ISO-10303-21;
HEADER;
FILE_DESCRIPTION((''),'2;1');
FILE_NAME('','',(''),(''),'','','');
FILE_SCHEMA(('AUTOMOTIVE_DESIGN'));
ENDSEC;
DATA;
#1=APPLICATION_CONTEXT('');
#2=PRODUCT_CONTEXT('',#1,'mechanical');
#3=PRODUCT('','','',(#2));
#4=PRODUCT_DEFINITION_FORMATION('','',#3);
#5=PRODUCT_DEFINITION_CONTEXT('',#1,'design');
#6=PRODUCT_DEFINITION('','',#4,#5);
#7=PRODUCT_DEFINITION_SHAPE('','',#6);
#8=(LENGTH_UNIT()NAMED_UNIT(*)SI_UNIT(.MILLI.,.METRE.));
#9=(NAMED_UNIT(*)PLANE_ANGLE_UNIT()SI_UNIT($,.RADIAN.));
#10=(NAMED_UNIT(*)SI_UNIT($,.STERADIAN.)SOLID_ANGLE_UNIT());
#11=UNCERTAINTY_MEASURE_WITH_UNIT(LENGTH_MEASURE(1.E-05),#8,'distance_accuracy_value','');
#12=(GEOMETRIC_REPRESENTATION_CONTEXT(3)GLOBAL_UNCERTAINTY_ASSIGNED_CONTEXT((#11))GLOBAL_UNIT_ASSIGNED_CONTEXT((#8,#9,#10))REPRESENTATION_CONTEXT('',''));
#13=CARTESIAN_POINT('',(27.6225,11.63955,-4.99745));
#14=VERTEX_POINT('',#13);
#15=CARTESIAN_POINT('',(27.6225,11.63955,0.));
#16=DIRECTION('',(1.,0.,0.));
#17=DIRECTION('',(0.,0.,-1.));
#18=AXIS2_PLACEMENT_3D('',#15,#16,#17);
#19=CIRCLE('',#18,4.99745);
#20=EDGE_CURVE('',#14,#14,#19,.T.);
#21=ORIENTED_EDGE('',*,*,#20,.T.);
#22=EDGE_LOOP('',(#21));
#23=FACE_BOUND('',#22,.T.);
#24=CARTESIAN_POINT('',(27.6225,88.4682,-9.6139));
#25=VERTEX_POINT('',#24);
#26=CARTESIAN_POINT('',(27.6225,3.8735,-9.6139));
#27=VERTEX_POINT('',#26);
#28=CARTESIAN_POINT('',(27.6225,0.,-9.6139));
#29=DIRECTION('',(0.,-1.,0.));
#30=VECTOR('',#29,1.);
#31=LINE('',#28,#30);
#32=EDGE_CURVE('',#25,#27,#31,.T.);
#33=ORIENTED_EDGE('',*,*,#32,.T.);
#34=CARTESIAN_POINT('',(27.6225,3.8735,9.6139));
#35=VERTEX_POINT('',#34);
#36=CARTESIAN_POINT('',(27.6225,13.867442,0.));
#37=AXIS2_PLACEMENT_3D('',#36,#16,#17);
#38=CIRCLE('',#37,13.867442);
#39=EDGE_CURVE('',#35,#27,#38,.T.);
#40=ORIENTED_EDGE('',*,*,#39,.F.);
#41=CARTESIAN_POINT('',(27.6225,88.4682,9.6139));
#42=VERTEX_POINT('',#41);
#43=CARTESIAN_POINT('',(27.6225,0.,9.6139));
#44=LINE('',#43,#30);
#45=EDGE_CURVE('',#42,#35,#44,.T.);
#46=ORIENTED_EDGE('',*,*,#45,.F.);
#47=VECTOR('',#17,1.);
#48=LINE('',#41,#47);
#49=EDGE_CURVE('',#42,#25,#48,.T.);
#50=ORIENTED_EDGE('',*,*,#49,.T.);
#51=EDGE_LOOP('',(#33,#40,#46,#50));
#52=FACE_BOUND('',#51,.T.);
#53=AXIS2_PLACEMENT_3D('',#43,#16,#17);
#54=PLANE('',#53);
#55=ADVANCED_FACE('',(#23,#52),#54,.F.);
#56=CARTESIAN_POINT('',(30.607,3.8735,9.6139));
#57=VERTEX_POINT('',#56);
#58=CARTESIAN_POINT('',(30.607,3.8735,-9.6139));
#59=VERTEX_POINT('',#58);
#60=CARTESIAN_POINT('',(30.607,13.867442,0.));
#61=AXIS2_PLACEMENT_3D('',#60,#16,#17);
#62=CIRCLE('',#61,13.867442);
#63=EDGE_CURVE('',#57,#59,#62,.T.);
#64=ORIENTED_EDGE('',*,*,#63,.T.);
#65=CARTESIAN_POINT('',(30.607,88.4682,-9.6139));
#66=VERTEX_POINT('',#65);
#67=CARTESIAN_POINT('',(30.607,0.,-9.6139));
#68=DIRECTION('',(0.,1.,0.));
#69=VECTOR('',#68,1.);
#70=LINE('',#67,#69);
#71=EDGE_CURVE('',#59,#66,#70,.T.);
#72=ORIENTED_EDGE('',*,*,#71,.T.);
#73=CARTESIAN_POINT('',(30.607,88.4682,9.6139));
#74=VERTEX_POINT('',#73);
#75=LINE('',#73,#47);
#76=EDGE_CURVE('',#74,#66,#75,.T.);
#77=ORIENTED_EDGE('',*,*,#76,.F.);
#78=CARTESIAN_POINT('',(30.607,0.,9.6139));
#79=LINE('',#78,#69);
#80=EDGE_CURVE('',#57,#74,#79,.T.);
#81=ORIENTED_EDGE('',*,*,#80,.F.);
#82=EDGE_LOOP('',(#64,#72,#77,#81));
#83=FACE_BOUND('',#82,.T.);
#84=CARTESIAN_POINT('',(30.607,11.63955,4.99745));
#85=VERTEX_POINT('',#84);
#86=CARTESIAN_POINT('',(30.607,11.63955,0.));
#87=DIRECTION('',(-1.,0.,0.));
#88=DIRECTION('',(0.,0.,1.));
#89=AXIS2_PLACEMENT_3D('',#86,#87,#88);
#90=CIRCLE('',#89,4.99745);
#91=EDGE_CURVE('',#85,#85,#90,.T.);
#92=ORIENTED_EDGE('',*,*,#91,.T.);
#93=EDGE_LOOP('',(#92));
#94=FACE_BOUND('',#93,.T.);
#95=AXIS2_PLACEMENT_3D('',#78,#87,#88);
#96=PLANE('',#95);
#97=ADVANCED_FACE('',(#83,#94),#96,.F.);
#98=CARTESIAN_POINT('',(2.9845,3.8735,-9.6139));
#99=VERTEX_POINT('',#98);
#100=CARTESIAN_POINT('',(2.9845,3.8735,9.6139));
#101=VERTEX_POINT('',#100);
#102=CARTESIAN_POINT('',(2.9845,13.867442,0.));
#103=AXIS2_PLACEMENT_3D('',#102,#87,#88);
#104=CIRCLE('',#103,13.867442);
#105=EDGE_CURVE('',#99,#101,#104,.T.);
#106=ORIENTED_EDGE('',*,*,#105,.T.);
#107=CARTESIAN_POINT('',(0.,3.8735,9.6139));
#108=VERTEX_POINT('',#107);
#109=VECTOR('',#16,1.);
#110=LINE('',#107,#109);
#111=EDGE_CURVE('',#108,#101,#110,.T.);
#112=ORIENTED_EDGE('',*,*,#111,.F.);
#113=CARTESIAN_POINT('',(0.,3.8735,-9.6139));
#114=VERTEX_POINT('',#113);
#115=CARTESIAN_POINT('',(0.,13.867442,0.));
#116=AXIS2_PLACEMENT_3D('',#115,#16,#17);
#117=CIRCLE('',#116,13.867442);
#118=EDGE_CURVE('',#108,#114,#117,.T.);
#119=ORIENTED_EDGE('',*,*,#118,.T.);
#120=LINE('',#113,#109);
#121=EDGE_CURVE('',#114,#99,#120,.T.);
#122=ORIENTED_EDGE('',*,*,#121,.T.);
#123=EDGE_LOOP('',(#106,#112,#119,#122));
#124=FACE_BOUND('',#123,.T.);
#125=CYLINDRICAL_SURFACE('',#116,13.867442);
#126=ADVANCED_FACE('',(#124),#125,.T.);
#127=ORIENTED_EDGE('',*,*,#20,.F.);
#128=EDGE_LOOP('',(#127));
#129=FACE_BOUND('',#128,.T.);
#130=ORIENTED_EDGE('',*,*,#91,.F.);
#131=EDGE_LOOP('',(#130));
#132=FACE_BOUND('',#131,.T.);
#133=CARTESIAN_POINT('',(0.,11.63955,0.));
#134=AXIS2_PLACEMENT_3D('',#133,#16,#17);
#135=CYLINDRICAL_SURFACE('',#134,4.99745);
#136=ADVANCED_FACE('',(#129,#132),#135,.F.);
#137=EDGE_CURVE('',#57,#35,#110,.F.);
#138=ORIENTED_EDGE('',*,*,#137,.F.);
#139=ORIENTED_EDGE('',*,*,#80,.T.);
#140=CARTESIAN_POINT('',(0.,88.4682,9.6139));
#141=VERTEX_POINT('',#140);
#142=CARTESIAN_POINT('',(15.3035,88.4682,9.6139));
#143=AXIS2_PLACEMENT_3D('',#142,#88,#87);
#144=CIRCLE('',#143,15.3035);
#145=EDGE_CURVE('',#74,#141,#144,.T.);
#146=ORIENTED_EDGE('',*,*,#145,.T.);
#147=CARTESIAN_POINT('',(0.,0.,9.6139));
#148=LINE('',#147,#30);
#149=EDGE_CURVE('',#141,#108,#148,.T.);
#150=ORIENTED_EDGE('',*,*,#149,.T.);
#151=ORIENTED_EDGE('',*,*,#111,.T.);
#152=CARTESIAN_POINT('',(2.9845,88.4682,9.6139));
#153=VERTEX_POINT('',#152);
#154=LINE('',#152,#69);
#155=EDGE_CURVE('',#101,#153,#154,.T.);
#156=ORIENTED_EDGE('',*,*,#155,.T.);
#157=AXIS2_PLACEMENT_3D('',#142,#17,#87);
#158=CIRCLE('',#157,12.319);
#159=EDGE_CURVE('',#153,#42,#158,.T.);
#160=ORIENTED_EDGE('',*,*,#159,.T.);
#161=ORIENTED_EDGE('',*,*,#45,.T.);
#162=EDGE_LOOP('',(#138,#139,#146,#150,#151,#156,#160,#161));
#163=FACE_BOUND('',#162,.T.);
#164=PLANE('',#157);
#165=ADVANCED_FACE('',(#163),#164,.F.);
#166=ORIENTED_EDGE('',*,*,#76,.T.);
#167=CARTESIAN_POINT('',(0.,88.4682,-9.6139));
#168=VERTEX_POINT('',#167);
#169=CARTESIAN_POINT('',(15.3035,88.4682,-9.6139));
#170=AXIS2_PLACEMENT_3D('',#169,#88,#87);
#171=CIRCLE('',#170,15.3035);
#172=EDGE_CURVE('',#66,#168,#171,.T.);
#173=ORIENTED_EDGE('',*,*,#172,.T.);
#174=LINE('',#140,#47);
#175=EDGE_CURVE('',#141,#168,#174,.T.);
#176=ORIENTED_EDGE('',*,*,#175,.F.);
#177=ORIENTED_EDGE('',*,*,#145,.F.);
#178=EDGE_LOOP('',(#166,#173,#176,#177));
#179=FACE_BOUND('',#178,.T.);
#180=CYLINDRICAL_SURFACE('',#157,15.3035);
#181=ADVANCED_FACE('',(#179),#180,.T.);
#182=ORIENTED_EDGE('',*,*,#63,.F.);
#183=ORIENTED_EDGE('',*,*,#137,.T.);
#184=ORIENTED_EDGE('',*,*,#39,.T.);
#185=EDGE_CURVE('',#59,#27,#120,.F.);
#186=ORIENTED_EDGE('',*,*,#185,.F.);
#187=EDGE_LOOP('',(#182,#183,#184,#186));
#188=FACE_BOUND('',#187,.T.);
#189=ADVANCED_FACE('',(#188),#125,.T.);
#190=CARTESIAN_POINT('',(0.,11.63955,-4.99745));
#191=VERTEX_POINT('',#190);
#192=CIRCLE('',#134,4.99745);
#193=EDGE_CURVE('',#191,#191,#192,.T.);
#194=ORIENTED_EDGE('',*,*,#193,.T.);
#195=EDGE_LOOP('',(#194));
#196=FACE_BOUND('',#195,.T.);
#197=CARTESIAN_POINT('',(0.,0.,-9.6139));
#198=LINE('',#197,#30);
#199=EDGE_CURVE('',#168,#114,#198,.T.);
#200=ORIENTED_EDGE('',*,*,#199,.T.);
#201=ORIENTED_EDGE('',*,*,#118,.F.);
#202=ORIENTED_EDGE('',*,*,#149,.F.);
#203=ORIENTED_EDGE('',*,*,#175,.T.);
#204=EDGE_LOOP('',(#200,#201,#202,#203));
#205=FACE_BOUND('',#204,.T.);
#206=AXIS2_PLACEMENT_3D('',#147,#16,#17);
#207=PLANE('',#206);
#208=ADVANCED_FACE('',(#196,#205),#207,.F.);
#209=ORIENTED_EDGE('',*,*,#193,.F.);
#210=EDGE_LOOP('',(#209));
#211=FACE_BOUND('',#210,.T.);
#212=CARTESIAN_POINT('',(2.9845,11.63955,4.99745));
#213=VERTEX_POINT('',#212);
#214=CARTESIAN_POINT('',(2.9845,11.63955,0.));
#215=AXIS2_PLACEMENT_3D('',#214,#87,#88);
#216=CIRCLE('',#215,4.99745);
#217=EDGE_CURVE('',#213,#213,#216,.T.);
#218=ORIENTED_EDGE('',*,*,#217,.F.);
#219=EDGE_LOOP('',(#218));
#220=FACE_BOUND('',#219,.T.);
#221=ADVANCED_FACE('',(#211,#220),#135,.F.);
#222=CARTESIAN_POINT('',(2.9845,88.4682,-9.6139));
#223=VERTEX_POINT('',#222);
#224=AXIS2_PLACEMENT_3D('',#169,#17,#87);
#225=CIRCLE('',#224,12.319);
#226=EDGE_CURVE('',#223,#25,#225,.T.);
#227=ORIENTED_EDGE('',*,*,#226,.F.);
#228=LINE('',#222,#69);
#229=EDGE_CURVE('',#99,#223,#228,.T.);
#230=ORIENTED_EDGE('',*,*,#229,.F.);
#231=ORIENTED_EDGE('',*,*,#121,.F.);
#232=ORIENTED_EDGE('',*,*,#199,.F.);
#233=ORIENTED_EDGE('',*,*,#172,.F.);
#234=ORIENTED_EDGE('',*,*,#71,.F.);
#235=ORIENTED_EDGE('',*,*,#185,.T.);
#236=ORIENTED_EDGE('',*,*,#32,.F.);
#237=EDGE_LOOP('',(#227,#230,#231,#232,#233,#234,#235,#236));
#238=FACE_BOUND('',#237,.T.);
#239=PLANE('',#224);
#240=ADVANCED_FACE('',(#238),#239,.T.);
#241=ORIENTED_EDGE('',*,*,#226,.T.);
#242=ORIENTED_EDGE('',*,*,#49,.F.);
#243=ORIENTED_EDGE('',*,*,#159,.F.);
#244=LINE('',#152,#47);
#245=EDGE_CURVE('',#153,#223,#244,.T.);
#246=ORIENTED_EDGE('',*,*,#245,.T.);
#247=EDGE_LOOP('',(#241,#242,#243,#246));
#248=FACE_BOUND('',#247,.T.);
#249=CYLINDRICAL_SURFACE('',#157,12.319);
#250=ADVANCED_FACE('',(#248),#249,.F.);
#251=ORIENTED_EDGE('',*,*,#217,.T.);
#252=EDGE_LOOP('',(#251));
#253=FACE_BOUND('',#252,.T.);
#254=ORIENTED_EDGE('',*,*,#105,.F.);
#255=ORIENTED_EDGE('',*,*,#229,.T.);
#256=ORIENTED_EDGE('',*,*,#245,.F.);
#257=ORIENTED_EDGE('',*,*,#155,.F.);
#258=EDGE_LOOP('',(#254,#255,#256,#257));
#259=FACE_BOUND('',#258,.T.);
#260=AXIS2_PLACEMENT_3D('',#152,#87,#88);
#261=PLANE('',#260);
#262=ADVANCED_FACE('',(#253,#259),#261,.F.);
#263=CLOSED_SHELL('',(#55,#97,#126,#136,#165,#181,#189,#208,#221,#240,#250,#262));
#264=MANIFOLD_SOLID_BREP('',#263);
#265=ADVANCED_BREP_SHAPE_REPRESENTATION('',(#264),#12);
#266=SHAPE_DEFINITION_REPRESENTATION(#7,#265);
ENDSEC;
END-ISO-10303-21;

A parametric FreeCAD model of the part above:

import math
import FreeCAD as App
import Part
import Sketcher

V = App.Vector
Q = App.Units.Quantity

doc = App.newDocument("Part")
body = doc.addObject("PartDesign::Body", "Body")

sketch1 = body.newObject("Sketcher::SketchObject", "Sketch")
sketch1.AttachmentSupport = (doc.getObject("XY_Plane"), [""])
sketch1.MapMode = "FlatFace"
sketch1.addGeometry(Part.LineSegment(V(0, 88.4682, 0), V(0, 0, 0)), False)
sketch1.addGeometry(Part.LineSegment(V(0, 0, 0), V(2.9845, 0, 0)), False)
sketch1.addGeometry(Part.LineSegment(V(2.9845, 0, 0), V(2.9845, 88.4682, 0)), False)
sketch1.addGeometry(Part.ArcOfCircle(Part.Circle(V(15.3035, 88.4682, 0), V(0, 0, 1), 12.319), math.radians(0), math.radians(180)), False)
sketch1.addGeometry(Part.LineSegment(V(27.6225, 88.4682, 0), V(27.6225, 0, 0)), False)
sketch1.addGeometry(Part.LineSegment(V(27.6225, 0, 0), V(30.607, 0, 0)), False)
sketch1.addGeometry(Part.LineSegment(V(30.607, 0, 0), V(30.607, 88.4682, 0)), False)
sketch1.addGeometry(Part.ArcOfCircle(Part.Circle(V(15.3035, 88.4682, 0), V(0, 0, 1), 15.3035), math.radians(0), math.radians(180)), False)
sketch1.addConstraint(Sketcher.Constraint("Coincident", 0, 2, 1, 1))
sketch1.addConstraint(Sketcher.Constraint("Coincident", 1, 2, 2, 1))
sketch1.addConstraint(Sketcher.Constraint("Tangent", 2, 2, 3, 2))
sketch1.addConstraint(Sketcher.Constraint("Tangent", 3, 1, 4, 1))
sketch1.addConstraint(Sketcher.Constraint("Coincident", 4, 2, 5, 1))
sketch1.addConstraint(Sketcher.Constraint("Coincident", 5, 2, 6, 1))
sketch1.addConstraint(Sketcher.Constraint("Tangent", 6, 2, 7, 1))
sketch1.addConstraint(Sketcher.Constraint("Tangent", 7, 2, 0, 1))
sketch1.addConstraint(Sketcher.Constraint("Vertical", 0))
sketch1.addConstraint(Sketcher.Constraint("Horizontal", 1))
sketch1.addConstraint(Sketcher.Constraint("Vertical", 2))
sketch1.addConstraint(Sketcher.Constraint("Vertical", 4))
sketch1.addConstraint(Sketcher.Constraint("Horizontal", 5))
sketch1.addConstraint(Sketcher.Constraint("Vertical", 6))
sketch1.addConstraint(Sketcher.Constraint("Coincident", 0, 2, -1, 1))
sketch1.addConstraint(Sketcher.Constraint("Coincident", 7, 3, 3, 3))
sketch1.addConstraint(Sketcher.Constraint("PointOnObject", 4, 2, -1))
sketch1.addConstraint(Sketcher.Constraint("Radius", 3, Q("0.485 in")))
sketch1.addConstraint(Sketcher.Constraint("Radius", 7, Q("0.6025 in")))
sketch1.addConstraint(Sketcher.Constraint("DistanceY", 0, 2, 0, 1, Q("3.483 in")))
pad1 = body.newObject("PartDesign::Pad", "Pad")
pad1.Profile = sketch1
pad1.Length = Q("0.757 in")
pad1.Midplane = True

sketch2 = body.newObject("Sketcher::SketchObject", "Sketch001")
sketch2.AttachmentSupport = (doc.getObject("YZ_Plane"), [""])
sketch2.MapMode = "FlatFace"
sketch2.AttachmentOffset = App.Placement(V(0, 0, 1.205 * 25.4), App.Rotation())
sketch2.addGeometry(Part.Circle(V(11.63955, 0, 0), V(0, 0, 1), 4.99745), False)
sketch2.addConstraint(Sketcher.Constraint("PointOnObject", 0, 3, -1))
sketch2.addConstraint(Sketcher.Constraint("Diameter", 0, Q("0.3935 in")))
sketch2.addConstraint(Sketcher.Constraint("DistanceX", -1, 1, 0, 3, Q("11.63955 mm")))
pocket1 = body.newObject("PartDesign::Pocket", "Pocket")
pocket1.Profile = sketch2
pocket1.Type = "ThroughAll"
pocket1.Midplane = True

sketch3 = body.newObject("Sketcher::SketchObject", "Sketch002")
sketch3.AttachmentSupport = (doc.getObject("YZ_Plane"), [""])
sketch3.MapMode = "FlatFace"
sketch3.AttachmentOffset = App.Placement(V(0, 0, 1.205 * 25.4), App.Rotation())
sketch3.addGeometry(Part.ArcOfCircle(Part.Circle(V(13.867442, 0, 0), V(0, 0, 1), 13.867442), math.radians(136.110377), math.radians(180)), False)
sketch3.addGeometry(Part.LineSegment(V(3.8735, 9.6139, 0), V(0, 9.6139, 0)), False)
sketch3.addGeometry(Part.LineSegment(V(0, 9.6139, 0), V(0, 0, 0)), False)
sketch3.addGeometry(Part.ArcOfCircle(Part.Circle(V(13.867442, 0, 0), V(0, 0, 1), 13.867442), math.radians(180), math.radians(223.889623)), False)
sketch3.addGeometry(Part.LineSegment(V(0, 0, 0), V(0, -9.6139, 0)), False)
sketch3.addGeometry(Part.LineSegment(V(0, -9.6139, 0), V(3.8735, -9.6139, 0)), False)
sketch3.addConstraint(Sketcher.Constraint("Coincident", 0, 1, 1, 1))
sketch3.addConstraint(Sketcher.Constraint("Coincident", 1, 2, 2, 1))
sketch3.addConstraint(Sketcher.Constraint("Tangent", 2, 2, 0, 2))
sketch3.addConstraint(Sketcher.Constraint("Tangent", 3, 1, 4, 1))
sketch3.addConstraint(Sketcher.Constraint("Coincident", 4, 2, 5, 1))
sketch3.addConstraint(Sketcher.Constraint("Coincident", 5, 2, 3, 2))
sketch3.addConstraint(Sketcher.Constraint("Horizontal", 1))
sketch3.addConstraint(Sketcher.Constraint("Vertical", 2))
sketch3.addConstraint(Sketcher.Constraint("Vertical", 4))
sketch3.addConstraint(Sketcher.Constraint("Horizontal", 5))
sketch3.addConstraint(Sketcher.Constraint("Coincident", 2, 2, -1, 1))
sketch3.addConstraint(Sketcher.Constraint("Coincident", 3, 1, -1, 1))
sketch3.addConstraint(Sketcher.Constraint("Equal", 0, 3))
sketch3.addConstraint(Sketcher.Constraint("Vertical", 0, 1, 5, 2))
sketch3.addConstraint(Sketcher.Constraint("DistanceX", 1, 2, 1, 1, Q("0.1525 in")))
sketch3.addConstraint(Sketcher.Constraint("DistanceY", 2, 2, 2, 1, Q("0.3785 in")))
pocket2 = body.newObject("PartDesign::Pocket", "Pocket001")
pocket2.Profile = sketch3
pocket2.Type = "ThroughAll"
pocket2.Midplane = True

doc.recompute()
